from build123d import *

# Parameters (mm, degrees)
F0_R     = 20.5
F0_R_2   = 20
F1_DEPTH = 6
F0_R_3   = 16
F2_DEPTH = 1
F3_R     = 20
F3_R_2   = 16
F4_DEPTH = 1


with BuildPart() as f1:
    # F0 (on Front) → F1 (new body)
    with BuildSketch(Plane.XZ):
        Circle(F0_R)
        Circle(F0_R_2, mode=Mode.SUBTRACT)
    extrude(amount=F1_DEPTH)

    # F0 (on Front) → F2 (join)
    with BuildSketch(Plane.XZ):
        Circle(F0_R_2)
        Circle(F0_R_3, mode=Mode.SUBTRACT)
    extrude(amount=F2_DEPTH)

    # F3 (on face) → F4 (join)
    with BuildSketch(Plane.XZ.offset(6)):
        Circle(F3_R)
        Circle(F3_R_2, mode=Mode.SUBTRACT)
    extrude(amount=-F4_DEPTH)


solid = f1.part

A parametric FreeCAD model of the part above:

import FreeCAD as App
import Part
import Sketcher

V = App.Vector
Q = App.Units.Quantity

doc = App.newDocument("Part")
body = doc.addObject("PartDesign::Body", "Body")

# Sketch on XZ plane
sketch1 = doc.addObject("Sketcher::SketchObject", "Sketch")
body.addObject(sketch1)
sketch1.AttachmentSupport = (doc.XZ_Plane, [""])
sketch1.MapMode = "FlatFace"
sketch1.addGeometry([
    Part.Circle(V(0, 0, 0), V(0, 0, 1), 20),
    Part.Circle(V(0, 0, 0), V(0, 0, 1), 20),
], False)
sketch1.addConstraint([
    Sketcher.Constraint("Coincident", 0, 3, -1, 1),
    Sketcher.Constraint("Coincident", 1, 3, -1, 1),
    Sketcher.Constraint("Diameter", 0, Q("41 mm")),
    Sketcher.Constraint("Diameter", 1, Q("40 mm")),
])
pad1 = doc.addObject("PartDesign::Pad", "Pad")
body.addObject(pad1)
pad1.Profile = sketch1
pad1.Length = 6

# Sketch on XZ plane
sketch2 = doc.addObject("Sketcher::SketchObject", "Sketch001")
body.addObject(sketch2)
sketch2.AttachmentSupport = (doc.XZ_Plane, [""])
sketch2.MapMode = "FlatFace"
sketch2.addGeometry([
    Part.Circle(V(0, 0, 0), V(0, 0, 1), 20),
    Part.Circle(V(0, 0, 0), V(0, 0, 1), 16),
], False)
sketch2.addConstraint([
    Sketcher.Constraint("Coincident", 0, 3, -1, 1),
    Sketcher.Constraint("Coincident", 1, 3, -1, 1),
    Sketcher.Constraint("Diameter", 0, Q("40 mm")),
    Sketcher.Constraint("Diameter", 1, Q("32 mm")),
])
pad2 = doc.addObject("PartDesign::Pad", "Pad001")
body.addObject(pad2)
pad2.Profile = sketch2
pad2.Length = 1

# Sketch on XZ plane
sketch3 = doc.addObject("Sketcher::SketchObject", "Sketch002")
body.addObject(sketch3)
sketch3.AttachmentSupport = (doc.XZ_Plane, [""])
sketch3.MapMode = "FlatFace"
sketch3.AttachmentOffset = App.Placement(V(0, 0, 6), App.Rotation())
sketch3.addGeometry([
    Part.Circle(V(0, 0, 0), V(0, 0, 1), 20),
    Part.Circle(V(0, 0, 0), V(0, 0, 1), 16),
], False)
sketch3.addConstraint([
    Sketcher.Constraint("Coincident", 0, 3, -1, 1),
    Sketcher.Constraint("Coincident", 1, 3, -1, 1),
    Sketcher.Constraint("Diameter", 0, Q("40 mm")),
    Sketcher.Constraint("Diameter", 1, Q("32 mm")),
])
pad3 = doc.addObject("PartDesign::Pad", "Pad002")
body.addObject(pad3)
pad3.Profile = sketch3
pad3.Length = 1
pad3.Reversed = True

doc.recompute()
